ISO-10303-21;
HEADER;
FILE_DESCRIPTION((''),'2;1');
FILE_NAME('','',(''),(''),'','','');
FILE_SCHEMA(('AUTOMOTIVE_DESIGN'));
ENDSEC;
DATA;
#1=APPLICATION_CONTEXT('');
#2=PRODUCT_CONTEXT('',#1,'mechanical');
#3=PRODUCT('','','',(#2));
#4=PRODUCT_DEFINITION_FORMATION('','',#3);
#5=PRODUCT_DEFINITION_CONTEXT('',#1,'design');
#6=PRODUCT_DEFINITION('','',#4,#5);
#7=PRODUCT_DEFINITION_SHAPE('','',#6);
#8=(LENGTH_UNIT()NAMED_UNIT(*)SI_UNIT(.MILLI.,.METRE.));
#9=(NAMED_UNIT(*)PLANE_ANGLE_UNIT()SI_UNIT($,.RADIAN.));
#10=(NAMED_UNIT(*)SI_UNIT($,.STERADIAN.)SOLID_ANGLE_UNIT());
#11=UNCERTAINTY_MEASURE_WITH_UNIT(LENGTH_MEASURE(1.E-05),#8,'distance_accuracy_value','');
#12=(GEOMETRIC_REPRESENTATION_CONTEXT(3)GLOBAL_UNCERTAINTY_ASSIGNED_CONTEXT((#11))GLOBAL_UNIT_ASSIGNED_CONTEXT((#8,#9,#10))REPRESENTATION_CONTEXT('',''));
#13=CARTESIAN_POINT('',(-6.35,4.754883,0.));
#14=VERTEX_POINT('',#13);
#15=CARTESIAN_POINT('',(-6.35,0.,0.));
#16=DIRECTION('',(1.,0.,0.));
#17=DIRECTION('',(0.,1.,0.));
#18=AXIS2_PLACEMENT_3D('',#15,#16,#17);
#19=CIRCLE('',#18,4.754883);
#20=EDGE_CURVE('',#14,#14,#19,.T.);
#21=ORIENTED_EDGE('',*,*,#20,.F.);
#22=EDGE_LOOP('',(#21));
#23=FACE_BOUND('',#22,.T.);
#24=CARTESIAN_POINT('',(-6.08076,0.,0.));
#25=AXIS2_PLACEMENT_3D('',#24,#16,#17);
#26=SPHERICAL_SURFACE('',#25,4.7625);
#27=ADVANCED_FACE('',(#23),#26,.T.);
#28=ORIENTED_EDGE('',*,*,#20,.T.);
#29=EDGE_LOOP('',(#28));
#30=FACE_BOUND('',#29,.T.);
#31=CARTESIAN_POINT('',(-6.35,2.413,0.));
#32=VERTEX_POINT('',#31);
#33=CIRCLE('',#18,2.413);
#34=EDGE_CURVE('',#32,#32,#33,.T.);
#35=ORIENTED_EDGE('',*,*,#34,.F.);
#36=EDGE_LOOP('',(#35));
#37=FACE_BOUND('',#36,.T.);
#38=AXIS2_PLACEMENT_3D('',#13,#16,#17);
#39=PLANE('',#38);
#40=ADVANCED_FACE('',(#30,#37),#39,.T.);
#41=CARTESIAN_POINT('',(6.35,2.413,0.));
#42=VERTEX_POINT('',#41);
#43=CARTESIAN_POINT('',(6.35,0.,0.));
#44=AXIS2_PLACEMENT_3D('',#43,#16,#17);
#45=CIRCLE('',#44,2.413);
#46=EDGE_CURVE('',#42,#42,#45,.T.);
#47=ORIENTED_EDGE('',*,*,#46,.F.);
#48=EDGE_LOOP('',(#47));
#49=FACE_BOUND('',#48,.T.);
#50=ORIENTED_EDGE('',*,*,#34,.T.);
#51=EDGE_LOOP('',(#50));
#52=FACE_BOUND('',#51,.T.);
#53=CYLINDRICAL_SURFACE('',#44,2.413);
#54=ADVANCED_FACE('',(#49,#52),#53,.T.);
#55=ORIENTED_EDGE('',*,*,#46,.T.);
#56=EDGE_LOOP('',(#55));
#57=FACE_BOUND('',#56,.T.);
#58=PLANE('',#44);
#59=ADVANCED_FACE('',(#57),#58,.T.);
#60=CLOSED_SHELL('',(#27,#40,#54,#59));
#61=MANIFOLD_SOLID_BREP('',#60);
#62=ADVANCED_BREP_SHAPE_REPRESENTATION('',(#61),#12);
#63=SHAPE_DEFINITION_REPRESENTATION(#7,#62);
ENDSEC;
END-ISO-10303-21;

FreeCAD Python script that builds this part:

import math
import FreeCAD as App
import Part
import Sketcher
Q = App.Units.Quantity

doc = App.newDocument("Part")
body = doc.addObject("PartDesign::Body", "Body")

# Sketch on XY plane
sketch1 = body.newObject("Sketcher::SketchObject", "Sketch")
sketch1.AttachmentSupport = (doc.getObject("XY_Plane"), [""])
sketch1.MapMode = "FlatFace"
sketch1.addGeometry([
    Part.LineSegment(App.Vector(-6.3, 2.4, 0), App.Vector(-6.3, 4.8, 0)),  # 0
    Part.ArcOfCircle(Part.Circle(App.Vector(-6.1, 0, 0), App.Vector(0, 0, 1), 4.8), math.radians(93), math.radians(180)),  # 1
    Part.LineSegment(App.Vector(-10.8, 0, 0), App.Vector(6.3, 0, 0)),  # 2
    Part.LineSegment(App.Vector(6.3, 0, 0), App.Vector(6.3, 2.4, 0)),  # 3
    Part.LineSegment(App.Vector(6.3, 2.4, 0), App.Vector(-6.3, 2.4, 0)),  # 4
], False)
sketch1.addConstraint([
    Sketcher.Constraint("Coincident", 0, 2, 1, 1),
    Sketcher.Constraint("Coincident", 1, 2, 2, 1),
    Sketcher.Constraint("Coincident", 2, 2, 3, 1),
    Sketcher.Constraint("Coincident", 3, 2, 4, 1),
    Sketcher.Constraint("Coincident", 4, 2, 0, 1),
    Sketcher.Constraint("Vertical", 0),
    Sketcher.Constraint("Horizontal", 2),
    Sketcher.Constraint("Vertical", 3),
    Sketcher.Constraint("Horizontal", 4),
    Sketcher.Constraint("PointOnObject", 1, 3, -1),
    Sketcher.Constraint("PointOnObject", 1, 2, -1),
    Sketcher.Constraint("DistanceX", 4, 2, 4, 1, Q("0.5 in")),
    Sketcher.Constraint("Radius", 1, Q("0.1875 in")),
    Sketcher.Constraint("DistanceY", 3, 1, 3, 2, Q("0.095 in")),
    Sketcher.Constraint("DistanceX", 0, 2, -1, 1, Q("0.25 in")),
    Sketcher.Constraint("DistanceX", 2, 1, 2, 2, Q("0.6769 in")),
])
revolution = body.newObject("PartDesign::Revolution", "Revolution")
revolution.Profile = sketch1
revolution.ReferenceAxis = (sketch1, ["H_Axis"])
revolution.Angle = 360

doc.recompute()
